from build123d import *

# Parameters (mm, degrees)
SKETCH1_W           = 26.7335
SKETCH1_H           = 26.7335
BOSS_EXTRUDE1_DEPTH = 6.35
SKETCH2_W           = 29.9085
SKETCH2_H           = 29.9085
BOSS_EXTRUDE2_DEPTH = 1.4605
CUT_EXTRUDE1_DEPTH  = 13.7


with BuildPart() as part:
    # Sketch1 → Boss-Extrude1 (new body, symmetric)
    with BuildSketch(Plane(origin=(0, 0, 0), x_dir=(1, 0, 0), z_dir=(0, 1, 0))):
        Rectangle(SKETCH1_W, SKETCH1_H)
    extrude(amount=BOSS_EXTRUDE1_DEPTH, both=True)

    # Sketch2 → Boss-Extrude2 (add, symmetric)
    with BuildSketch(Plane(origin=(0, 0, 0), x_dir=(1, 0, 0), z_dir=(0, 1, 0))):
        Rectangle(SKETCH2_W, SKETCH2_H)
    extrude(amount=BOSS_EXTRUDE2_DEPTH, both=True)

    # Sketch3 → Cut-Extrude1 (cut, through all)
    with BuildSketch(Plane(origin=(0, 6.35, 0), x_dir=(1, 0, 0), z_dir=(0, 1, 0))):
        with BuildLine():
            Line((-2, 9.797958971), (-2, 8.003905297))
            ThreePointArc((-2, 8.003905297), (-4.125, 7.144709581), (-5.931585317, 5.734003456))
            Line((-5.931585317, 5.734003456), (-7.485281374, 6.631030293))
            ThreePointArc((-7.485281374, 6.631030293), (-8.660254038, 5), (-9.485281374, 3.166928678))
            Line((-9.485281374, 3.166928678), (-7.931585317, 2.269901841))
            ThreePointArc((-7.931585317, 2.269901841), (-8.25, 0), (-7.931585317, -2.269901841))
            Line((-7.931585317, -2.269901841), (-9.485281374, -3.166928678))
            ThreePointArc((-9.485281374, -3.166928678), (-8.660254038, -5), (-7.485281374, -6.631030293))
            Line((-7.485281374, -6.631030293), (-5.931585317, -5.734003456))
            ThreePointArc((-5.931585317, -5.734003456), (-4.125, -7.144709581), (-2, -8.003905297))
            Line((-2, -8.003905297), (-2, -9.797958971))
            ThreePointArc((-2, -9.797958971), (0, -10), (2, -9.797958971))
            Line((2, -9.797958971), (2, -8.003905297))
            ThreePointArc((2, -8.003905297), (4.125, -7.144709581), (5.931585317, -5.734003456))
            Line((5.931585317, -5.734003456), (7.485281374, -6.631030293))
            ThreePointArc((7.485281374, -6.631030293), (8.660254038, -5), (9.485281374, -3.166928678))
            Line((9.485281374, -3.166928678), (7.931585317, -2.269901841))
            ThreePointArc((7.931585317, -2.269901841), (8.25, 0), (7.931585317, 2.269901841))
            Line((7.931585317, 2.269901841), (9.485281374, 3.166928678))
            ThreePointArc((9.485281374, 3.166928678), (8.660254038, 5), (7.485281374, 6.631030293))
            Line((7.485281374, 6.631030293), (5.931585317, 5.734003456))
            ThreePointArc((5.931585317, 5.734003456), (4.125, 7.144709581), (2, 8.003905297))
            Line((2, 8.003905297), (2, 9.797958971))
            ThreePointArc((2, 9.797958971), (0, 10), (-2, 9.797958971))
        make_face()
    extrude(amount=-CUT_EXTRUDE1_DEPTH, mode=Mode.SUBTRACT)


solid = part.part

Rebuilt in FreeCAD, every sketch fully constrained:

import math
import FreeCAD as App
import Part
import Sketcher
Q = App.Units.Quantity


def add_polygon(sketch, points):
    """Adds a closed chain of lines whose ends are joined by coincident constraints."""
    first, n = sketch.GeometryCount, len(points)
    for a, b in zip(points, points[1:] + points[:1]):
        sketch.addGeometry(Part.LineSegment(App.Vector(*a, 0), App.Vector(*b, 0)), False)
    for i in range(n):
        sketch.addConstraint(Sketcher.Constraint("Coincident", first + i, 2, first + (i + 1) % n, 1))

doc = App.newDocument("Part")
body = doc.addObject("PartDesign::Body", "Body")

# Sketch on XZ plane
sketch1 = body.newObject("Sketcher::SketchObject", "Sketch")
sketch1.AttachmentSupport = (doc.getObject("XZ_Plane"), [""])
sketch1.MapMode = "FlatFace"
add_polygon(sketch1, [(-13, -13), (-13, 13), (13, 13), (13, -13)])  # lines 0-3
sketch1.addConstraint(Sketcher.Constraint("Vertical", 0))
sketch1.addConstraint(Sketcher.Constraint("Horizontal", 1))
sketch1.addConstraint(Sketcher.Constraint("Vertical", 2))
sketch1.addConstraint(Sketcher.Constraint("Horizontal", 3))
sketch1.addConstraint(Sketcher.Constraint("Symmetric", 0, 2, 2, 2, -1, 1))
sketch1.addConstraint(Sketcher.Constraint("Equal", 3, 0))
sketch1.addConstraint(Sketcher.Constraint("DistanceX", 1, 1, 1, 2, Q("26.7335 mm")))
pad1 = body.newObject("PartDesign::Pad", "Pad")
pad1.Profile = sketch1
pad1.Length = 12.7
pad1.Midplane = True

# Sketch on XZ plane
sketch2 = body.newObject("Sketcher::SketchObject", "Sketch001")
sketch2.AttachmentSupport = (doc.getObject("XZ_Plane"), [""])
sketch2.MapMode = "FlatFace"
add_polygon(sketch2, [(-15, -15), (-15, 15), (15, 15), (15, -15)])  # lines 0-3
sketch2.addConstraint(Sketcher.Constraint("Vertical", 0))
sketch2.addConstraint(Sketcher.Constraint("Horizontal", 1))
sketch2.addConstraint(Sketcher.Constraint("Vertical", 2))
sketch2.addConstraint(Sketcher.Constraint("Horizontal", 3))
sketch2.addConstraint(Sketcher.Constraint("Symmetric", 0, 2, 2, 2, -1, 1))
sketch2.addConstraint(Sketcher.Constraint("Equal", 3, 0))
sketch2.addConstraint(Sketcher.Constraint("DistanceX", 1, 1, 1, 2, Q("29.9085 mm")))
pad2 = body.newObject("PartDesign::Pad", "Pad001")
pad2.Profile = sketch2
pad2.Length = 2.921
pad2.Midplane = True

# Sketch on XZ plane
sketch3 = body.newObject("Sketcher::SketchObject", "Sketch002")
sketch3.AttachmentSupport = (doc.getObject("XZ_Plane"), [""])
sketch3.MapMode = "FlatFace"
sketch3.AttachmentOffset = App.Placement(App.Vector(0, 0, -6.35), App.Rotation())
sketch3.addGeometry(Part.LineSegment(App.Vector(-2, -9.8, 0), App.Vector(-2, -8, 0)), False)
sketch3.addGeometry(Part.ArcOfCircle(Part.Circle(App.Vector(0, 0, 0), App.Vector(0, 0, 1), 8.3), math.radians(-136), math.radians(-104)), False)
sketch3.addGeometry(Part.LineSegment(App.Vector(-5.9, -5.7, 0), App.Vector(-7.5, -6.6, 0)), False)
sketch3.addGeometry(Part.ArcOfCircle(Part.Circle(App.Vector(0, 0, 0), App.Vector(0, 0, 1), 10), math.radians(-162), math.radians(-138)), False)
sketch3.addGeometry(Part.LineSegment(App.Vector(-9.5, -3.2, 0), App.Vector(-7.9, -2.3, 0)), False)
sketch3.addGeometry(Part.ArcOfCircle(Part.Circle(App.Vector(0, 0, 0), App.Vector(0, 0, 1), 8.3), math.radians(164), math.radians(196)), False)
sketch3.addGeometry(Part.LineSegment(App.Vector(-7.9, 2.3, 0), App.Vector(-9.5, 3.2, 0)), False)
sketch3.addGeometry(Part.ArcOfCircle(Part.Circle(App.Vector(0, 0, 0), App.Vector(0, 0, 1), 10), math.radians(138), math.radians(162)), False)
sketch3.addGeometry(Part.LineSegment(App.Vector(-7.5, 6.6, 0), App.Vector(-5.9, 5.7, 0)), False)
sketch3.addGeometry(Part.ArcOfCircle(Part.Circle(App.Vector(0, 0, 0), App.Vector(0, 0, 1), 8.3), math.radians(104), math.radians(136)), False)
sketch3.addGeometry(Part.LineSegment(App.Vector(-2, 8, 0), App.Vector(-2, 9.8, 0)), False)
sketch3.addGeometry(Part.ArcOfCircle(Part.Circle(App.Vector(0, 0, 0), App.Vector(0, 0, 1), 10), math.radians(78), math.radians(102)), False)
sketch3.addGeometry(Part.LineSegment(App.Vector(2, 9.8, 0), App.Vector(2, 8, 0)), False)
sketch3.addGeometry(Part.ArcOfCircle(Part.Circle(App.Vector(0, 0, 0), App.Vector(0, 0, 1), 8.3), math.radians(44), math.radians(76)), False)
sketch3.addGeometry(Part.LineSegment(App.Vector(5.9, 5.7, 0), App.Vector(7.5, 6.6, 0)), False)
sketch3.addGeometry(Part.ArcOfCircle(Part.Circle(App.Vector(0, 0, 0), App.Vector(0, 0, 1), 10), math.radians(18), math.radians(42)), False)
sketch3.addGeometry(Part.LineSegment(App.Vector(9.5, 3.2, 0), App.Vector(7.9, 2.3, 0)), False)
sketch3.addGeometry(Part.ArcOfCircle(Part.Circle(App.Vector(0, 0, 0), App.Vector(0, 0, 1), 8.3), math.radians(-16), math.radians(16)), False)
sketch3.addGeometry(Part.LineSegment(App.Vector(7.9, -2.3, 0), App.Vector(9.5, -3.2, 0)), False)
sketch3.addGeometry(Part.ArcOfCircle(Part.Circle(App.Vector(0, 0, 0), App.Vector(0, 0, 1), 10), math.radians(-42), math.radians(-18)), False)
sketch3.addGeometry(Part.LineSegment(App.Vector(7.5, -6.6, 0), App.Vector(5.9, -5.7, 0)), False)
sketch3.addGeometry(Part.ArcOfCircle(Part.Circle(App.Vector(0, 0, 0), App.Vector(0, 0, 1), 8.3), math.radians(-76), math.radians(-44)), False)
sketch3.addGeometry(Part.LineSegment(App.Vector(2, -8, 0), App.Vector(2, -9.8, 0)), False)
sketch3.addGeometry(Part.ArcOfCircle(Part.Circle(App.Vector(0, 0, 0), App.Vector(0, 0, 1), 10), math.radians(-102), math.radians(-78)), False)
sketch3.addConstraint(Sketcher.Constraint("Coincident", 0, 2, 1, 2))
sketch3.addConstraint(Sketcher.Constraint("Coincident", 1, 1, 2, 1))
sketch3.addConstraint(Sketcher.Constraint("Coincident", 2, 2, 3, 2))
sketch3.addConstraint(Sketcher.Constraint("Coincident", 3, 1, 4, 1))
sketch3.addConstraint(Sketcher.Constraint("Coincident", 4, 2, 5, 2))
sketch3.addConstraint(Sketcher.Constraint("Coincident", 5, 1, 6, 1))
sketch3.addConstraint(Sketcher.Constraint("Coincident", 6, 2, 7, 2))
sketch3.addConstraint(Sketcher.Constraint("Coincident", 7, 1, 8, 1))
sketch3.addConstraint(Sketcher.Constraint("Coincident", 8, 2, 9, 2))
sketch3.addConstraint(Sketcher.Constraint("Coincident", 9, 1, 10, 1))
sketch3.addConstraint(Sketcher.Constraint("Coincident", 10, 2, 11, 2))
sketch3.addConstraint(Sketcher.Constraint("Coincident", 11, 1, 12, 1))
sketch3.addConstraint(Sketcher.Constraint("Coincident", 12, 2, 13, 2))
sketch3.addConstraint(Sketcher.Constraint("Coincident", 13, 1, 14, 1))
sketch3.addConstraint(Sketcher.Constraint("Coincident", 14, 2, 15, 2))
sketch3.addConstraint(Sketcher.Constraint("Coincident", 15, 1, 16, 1))
sketch3.addConstraint(Sketcher.Constraint("Coincident", 16, 2, 17, 2))
sketch3.addConstraint(Sketcher.Constraint("Coincident", 17, 1, 18, 1))
sketch3.addConstraint(Sketcher.Constraint("Coincident", 18, 2, 19, 2))
sketch3.addConstraint(Sketcher.Constraint("Coincident", 19, 1, 20, 1))
sketch3.addConstraint(Sketcher.Constraint("Coincident", 20, 2, 21, 2))
sketch3.addConstraint(Sketcher.Constraint("Coincident", 21, 1, 22, 1))
sketch3.addConstraint(Sketcher.Constraint("Coincident", 22, 2, 23, 2))
sketch3.addConstraint(Sketcher.Constraint("Coincident", 23, 1, 0, 1))
sketch3.addConstraint(Sketcher.Constraint("Vertical", 0))
sketch3.addConstraint(Sketcher.Constraint("Vertical", 10))
sketch3.addConstraint(Sketcher.Constraint("Vertical", 12))
sketch3.addConstraint(Sketcher.Constraint("Vertical", 22))
sketch3.addConstraint(Sketcher.Constraint("Coincident", 1, 3, -1, 1))
sketch3.addConstraint(Sketcher.Constraint("Coincident", 3, 3, -1, 1))
sketch3.addConstraint(Sketcher.Constraint("Coincident", 5, 3, -1, 1))
sketch3.addConstraint(Sketcher.Constraint("Coincident", 7, 3, -1, 1))
sketch3.addConstraint(Sketcher.Constraint("Coincident", 9, 3, -1, 1))
sketch3.addConstraint(Sketcher.Constraint("Coincident", 11, 3, -1, 1))
sketch3.addConstraint(Sketcher.Constraint("Coincident", 13, 3, -1, 1))
sketch3.addConstraint(Sketcher.Constraint("Coincident", 15, 3, -1, 1))
sketch3.addConstraint(Sketcher.Constraint("Coincident", 17, 3, -1, 1))
sketch3.addConstraint(Sketcher.Constraint("Coincident", 19, 3, -1, 1))
sketch3.addConstraint(Sketcher.Constraint("Coincident", 21, 3, -1, 1))
sketch3.addConstraint(Sketcher.Constraint("Coincident", 23, 3, -1, 1))
sketch3.addConstraint(Sketcher.Constraint("Equal", 1, 5))
sketch3.addConstraint(Sketcher.Constraint("Equal", 3, 7))
sketch3.addConstraint(Sketcher.Constraint("Equal", 5, 9))
sketch3.addConstraint(Sketcher.Constraint("Equal", 7, 11))
sketch3.addConstraint(Sketcher.Constraint("Equal", 9, 13))
sketch3.addConstraint(Sketcher.Constraint("Equal", 11, 15))
sketch3.addConstraint(Sketcher.Constraint("Equal", 13, 17))
sketch3.addConstraint(Sketcher.Constraint("Equal", 15, 19))
sketch3.addConstraint(Sketcher.Constraint("Equal", 17, 21))
sketch3.addConstraint(Sketcher.Constraint("Equal", 19, 23))
sketch3.addConstraint(Sketcher.Constraint("Parallel", 2, 4))
sketch3.addConstraint(Sketcher.Constraint("Parallel", 6, 8))
sketch3.addConstraint(Sketcher.Constraint("Parallel", 4, 14))
sketch3.addConstraint(Sketcher.Constraint("Parallel", 14, 16))
sketch3.addConstraint(Sketcher.Constraint("Parallel", 8, 18))
sketch3.addConstraint(Sketcher.Constraint("Parallel", 18, 20))
sketch3.addConstraint(Sketcher.Constraint("Horizontal", 10, 2, 11, 1))
sketch3.addConstraint(Sketcher.Constraint("Horizontal", 8, 2, 13, 1))
sketch3.addConstraint(Sketcher.Constraint("Horizontal", 7, 1, 14, 2))
sketch3.addConstraint(Sketcher.Constraint("Horizontal", 6, 2, 15, 1))
sketch3.addConstraint(Sketcher.Constraint("Horizontal", 4, 2, 17, 1))
sketch3.addConstraint(Sketcher.Constraint("Horizontal", 2, 2, 19, 1))
sketch3.addConstraint(Sketcher.Constraint("Horizontal", 0, 2, 21, 1))
sketch3.addConstraint(Sketcher.Constraint("Vertical", 4, 2, 5, 1))
sketch3.addConstraint(Sketcher.Constraint("Vertical", 2, 2, 7, 1))
sketch3.addConstraint(Sketcher.Constraint("Vertical", 0, 2, 9, 1))
sketch3.addConstraint(Sketcher.Constraint("Equal", 2, 4))
sketch3.addConstraint(Sketcher.Constraint("Radius", 3, Q("10 mm")))
sketch3.addConstraint(Sketcher.Constraint("Angle", 2, Q("-150 deg")))
sketch3.addConstraint(Sketcher.Constraint("Radius", 1, Q("8.25 mm")))
sketch3.addConstraint(Sketcher.Constraint("DistanceX", 0, 2, -1, 1, Q("2 mm")))
sketch3.addConstraint(Sketcher.Constraint("DistanceX", 3, 1, 2, 2, Q("2 mm")))
pocket1 = body.newObject("PartDesign::Pocket", "Pocket")
pocket1.Profile = sketch3
pocket1.Type = "ThroughAll"
pocket1.Reversed = True

doc.recompute()
